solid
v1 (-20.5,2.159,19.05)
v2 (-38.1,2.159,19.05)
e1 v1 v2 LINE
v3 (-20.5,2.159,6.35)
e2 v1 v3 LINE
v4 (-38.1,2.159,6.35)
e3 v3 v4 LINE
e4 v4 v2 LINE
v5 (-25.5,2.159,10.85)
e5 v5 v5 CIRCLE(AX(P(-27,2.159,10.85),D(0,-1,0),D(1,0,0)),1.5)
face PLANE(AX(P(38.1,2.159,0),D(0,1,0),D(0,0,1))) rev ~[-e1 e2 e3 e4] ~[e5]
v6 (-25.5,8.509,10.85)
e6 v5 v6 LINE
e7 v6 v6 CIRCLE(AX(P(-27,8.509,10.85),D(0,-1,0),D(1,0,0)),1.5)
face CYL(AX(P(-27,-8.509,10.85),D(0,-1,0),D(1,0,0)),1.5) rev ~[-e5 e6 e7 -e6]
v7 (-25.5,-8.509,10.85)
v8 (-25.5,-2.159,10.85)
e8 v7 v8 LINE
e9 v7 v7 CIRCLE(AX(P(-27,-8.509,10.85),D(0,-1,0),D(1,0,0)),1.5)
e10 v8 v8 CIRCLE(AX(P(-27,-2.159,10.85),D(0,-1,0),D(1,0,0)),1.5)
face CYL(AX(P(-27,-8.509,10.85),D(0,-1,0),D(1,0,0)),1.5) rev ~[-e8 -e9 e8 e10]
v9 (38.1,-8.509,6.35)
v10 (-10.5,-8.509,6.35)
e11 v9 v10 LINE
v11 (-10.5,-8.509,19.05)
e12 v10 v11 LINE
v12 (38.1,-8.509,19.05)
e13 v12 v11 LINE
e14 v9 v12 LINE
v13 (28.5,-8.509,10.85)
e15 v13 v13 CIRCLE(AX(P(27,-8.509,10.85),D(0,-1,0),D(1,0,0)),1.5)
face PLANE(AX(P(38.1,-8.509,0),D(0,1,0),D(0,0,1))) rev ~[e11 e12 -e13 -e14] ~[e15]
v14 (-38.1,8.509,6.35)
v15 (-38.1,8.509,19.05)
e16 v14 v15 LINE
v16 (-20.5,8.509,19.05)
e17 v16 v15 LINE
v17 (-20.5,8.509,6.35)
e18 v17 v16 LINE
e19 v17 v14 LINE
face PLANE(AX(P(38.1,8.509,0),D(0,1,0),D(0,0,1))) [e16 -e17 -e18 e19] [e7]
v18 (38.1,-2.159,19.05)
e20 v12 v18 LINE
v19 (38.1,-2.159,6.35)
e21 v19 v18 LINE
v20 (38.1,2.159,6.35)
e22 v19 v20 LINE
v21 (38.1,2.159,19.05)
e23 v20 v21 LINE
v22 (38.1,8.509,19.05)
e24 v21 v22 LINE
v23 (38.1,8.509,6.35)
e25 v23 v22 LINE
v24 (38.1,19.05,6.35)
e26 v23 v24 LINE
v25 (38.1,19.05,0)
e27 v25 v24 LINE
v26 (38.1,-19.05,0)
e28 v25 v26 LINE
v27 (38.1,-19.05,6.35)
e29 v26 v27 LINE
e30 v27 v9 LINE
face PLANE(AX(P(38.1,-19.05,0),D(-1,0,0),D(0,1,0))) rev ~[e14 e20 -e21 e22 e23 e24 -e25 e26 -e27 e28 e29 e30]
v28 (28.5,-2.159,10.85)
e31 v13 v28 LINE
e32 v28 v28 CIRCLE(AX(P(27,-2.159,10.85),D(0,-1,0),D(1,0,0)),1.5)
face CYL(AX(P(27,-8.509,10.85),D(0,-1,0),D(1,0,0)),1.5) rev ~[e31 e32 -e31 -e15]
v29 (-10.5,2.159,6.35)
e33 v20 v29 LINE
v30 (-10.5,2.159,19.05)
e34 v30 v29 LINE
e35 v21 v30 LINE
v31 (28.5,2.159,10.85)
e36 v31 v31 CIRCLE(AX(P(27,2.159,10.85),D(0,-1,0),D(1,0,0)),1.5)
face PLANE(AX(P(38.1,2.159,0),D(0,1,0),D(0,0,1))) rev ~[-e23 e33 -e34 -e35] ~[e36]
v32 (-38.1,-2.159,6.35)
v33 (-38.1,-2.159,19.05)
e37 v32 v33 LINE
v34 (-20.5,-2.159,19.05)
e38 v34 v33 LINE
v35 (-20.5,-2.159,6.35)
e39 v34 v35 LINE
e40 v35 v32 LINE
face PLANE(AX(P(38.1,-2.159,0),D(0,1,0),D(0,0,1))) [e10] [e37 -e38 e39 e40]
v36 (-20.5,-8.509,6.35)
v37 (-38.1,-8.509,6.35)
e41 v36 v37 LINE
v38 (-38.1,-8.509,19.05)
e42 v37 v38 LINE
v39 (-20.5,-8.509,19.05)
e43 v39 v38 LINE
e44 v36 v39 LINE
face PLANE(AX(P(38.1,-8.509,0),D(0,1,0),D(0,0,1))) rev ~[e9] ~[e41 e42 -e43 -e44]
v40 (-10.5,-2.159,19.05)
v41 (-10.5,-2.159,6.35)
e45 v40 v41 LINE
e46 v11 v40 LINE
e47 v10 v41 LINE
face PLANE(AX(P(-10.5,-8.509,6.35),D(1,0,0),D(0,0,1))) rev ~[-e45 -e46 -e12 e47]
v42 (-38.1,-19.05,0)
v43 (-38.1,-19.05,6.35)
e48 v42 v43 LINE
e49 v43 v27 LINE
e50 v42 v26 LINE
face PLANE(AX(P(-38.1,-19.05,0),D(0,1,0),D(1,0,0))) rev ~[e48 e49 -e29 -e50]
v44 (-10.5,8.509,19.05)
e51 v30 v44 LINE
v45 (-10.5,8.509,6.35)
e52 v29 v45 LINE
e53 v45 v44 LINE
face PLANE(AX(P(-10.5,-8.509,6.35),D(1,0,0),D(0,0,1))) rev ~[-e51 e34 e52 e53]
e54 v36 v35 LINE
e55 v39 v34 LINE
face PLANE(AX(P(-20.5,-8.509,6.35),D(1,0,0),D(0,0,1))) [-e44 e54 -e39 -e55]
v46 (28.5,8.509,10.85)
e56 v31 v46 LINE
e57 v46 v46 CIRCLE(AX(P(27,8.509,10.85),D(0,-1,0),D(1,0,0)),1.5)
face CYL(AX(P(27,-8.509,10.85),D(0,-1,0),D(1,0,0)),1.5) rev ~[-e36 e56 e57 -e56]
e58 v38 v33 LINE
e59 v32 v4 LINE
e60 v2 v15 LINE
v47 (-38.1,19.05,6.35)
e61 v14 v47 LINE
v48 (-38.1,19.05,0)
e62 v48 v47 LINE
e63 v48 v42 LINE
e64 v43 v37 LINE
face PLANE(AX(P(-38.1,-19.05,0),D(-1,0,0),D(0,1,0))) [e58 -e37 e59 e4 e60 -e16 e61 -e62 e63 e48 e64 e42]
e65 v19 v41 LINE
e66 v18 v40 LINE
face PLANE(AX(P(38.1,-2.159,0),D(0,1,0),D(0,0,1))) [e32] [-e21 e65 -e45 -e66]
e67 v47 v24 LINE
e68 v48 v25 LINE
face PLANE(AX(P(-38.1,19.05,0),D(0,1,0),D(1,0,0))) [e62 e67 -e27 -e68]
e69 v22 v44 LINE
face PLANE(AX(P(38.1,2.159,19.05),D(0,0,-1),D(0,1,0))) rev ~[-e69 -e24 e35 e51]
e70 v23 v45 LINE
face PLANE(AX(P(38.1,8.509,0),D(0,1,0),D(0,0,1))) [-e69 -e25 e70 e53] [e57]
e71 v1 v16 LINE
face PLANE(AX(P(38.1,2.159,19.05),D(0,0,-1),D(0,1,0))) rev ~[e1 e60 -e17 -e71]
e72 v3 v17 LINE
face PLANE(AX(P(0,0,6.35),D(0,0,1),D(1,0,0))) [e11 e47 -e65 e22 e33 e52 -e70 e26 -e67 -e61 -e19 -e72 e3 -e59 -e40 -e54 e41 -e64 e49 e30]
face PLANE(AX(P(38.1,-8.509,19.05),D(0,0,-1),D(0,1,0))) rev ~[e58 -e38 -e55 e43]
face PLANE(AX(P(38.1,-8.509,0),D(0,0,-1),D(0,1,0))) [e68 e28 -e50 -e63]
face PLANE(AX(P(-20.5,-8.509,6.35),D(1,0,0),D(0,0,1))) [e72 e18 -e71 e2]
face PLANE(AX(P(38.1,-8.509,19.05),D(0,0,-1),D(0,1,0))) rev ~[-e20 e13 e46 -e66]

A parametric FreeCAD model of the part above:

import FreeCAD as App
import Part
import Sketcher
from FreeCAD import Vector
Q = App.Units.Quantity

doc = App.newDocument("Part")
body = doc.addObject("PartDesign::Body", "Body")

# Sketch on XY plane
sketch1 = body.newObject("Sketcher::SketchObject", "Sketch")
sketch1.AttachmentSupport = (doc.getObject("XY_Plane"), [""])
sketch1.MapMode = "FlatFace"
sketch1.addGeometry(Part.LineSegment(Vector(-38, 19, 0), Vector(-38, -19, 0)), False)
sketch1.addGeometry(Part.LineSegment(Vector(-38, -19, 0), Vector(38, -19, 0)), False)
sketch1.addGeometry(Part.LineSegment(Vector(38, -19, 0), Vector(38, 19, 0)), False)
sketch1.addGeometry(Part.LineSegment(Vector(38, 19, 0), Vector(-38, 19, 0)), False)
sketch1.addConstraint(Sketcher.Constraint("Coincident", 0, 2, 1, 1))
sketch1.addConstraint(Sketcher.Constraint("Coincident", 1, 2, 2, 1))
sketch1.addConstraint(Sketcher.Constraint("Coincident", 2, 2, 3, 1))
sketch1.addConstraint(Sketcher.Constraint("Coincident", 3, 2, 0, 1))
sketch1.addConstraint(Sketcher.Constraint("Vertical", 0))
sketch1.addConstraint(Sketcher.Constraint("Horizontal", 1))
sketch1.addConstraint(Sketcher.Constraint("Vertical", 2))
sketch1.addConstraint(Sketcher.Constraint("Horizontal", 3))
sketch1.addConstraint(Sketcher.Constraint("Symmetric", 0, 2, 2, 2, -1, 1))
sketch1.addConstraint(Sketcher.Constraint("DistanceX", 1, 1, 1, 2, Q("3 in")))
sketch1.addConstraint(Sketcher.Constraint("DistanceY", 0, 2, 0, 1, Q("1.5 in")))
pad1 = body.newObject("PartDesign::Pad", "Pad")
pad1.Profile = sketch1
pad1.Length = Q("0.25 in")

# Sketch on YZ plane
sketch2 = body.newObject("Sketcher::SketchObject", "Sketch001")
sketch2.AttachmentSupport = (doc.getObject("YZ_Plane"), [""])
sketch2.MapMode = "FlatFace"
sketch2.AttachmentOffset = App.Placement(Vector(0, 0, 1.5 * 25.4), App.Rotation())
sketch2.addGeometry(Part.LineSegment(Vector(-9, 19, 0), Vector(-9, 0, 0)), False)
sketch2.addGeometry(Part.LineSegment(Vector(-9, 0, 0), Vector(-2, 0, 0)), False)
sketch2.addGeometry(Part.LineSegment(Vector(-2, 0, 0), Vector(-2, 19, 0)), False)
sketch2.addGeometry(Part.LineSegment(Vector(-2, 19, 0), Vector(-9, 19, 0)), False)
sketch2.addGeometry(Part.LineSegment(Vector(2, 19, 0), Vector(2, 0, 0)), False)
sketch2.addGeometry(Part.LineSegment(Vector(2, 0, 0), Vector(9, 0, 0)), False)
sketch2.addGeometry(Part.LineSegment(Vector(9, 0, 0), Vector(9, 19, 0)), False)
sketch2.addGeometry(Part.LineSegment(Vector(9, 19, 0), Vector(2, 19, 0)), False)
sketch2.addConstraint(Sketcher.Constraint("Coincident", 0, 2, 1, 1))
sketch2.addConstraint(Sketcher.Constraint("Coincident", 1, 2, 2, 1))
sketch2.addConstraint(Sketcher.Constraint("Coincident", 2, 2, 3, 1))
sketch2.addConstraint(Sketcher.Constraint("Coincident", 3, 2, 0, 1))
sketch2.addConstraint(Sketcher.Constraint("Coincident", 4, 2, 5, 1))
sketch2.addConstraint(Sketcher.Constraint("Coincident", 5, 2, 6, 1))
sketch2.addConstraint(Sketcher.Constraint("Coincident", 6, 2, 7, 1))
sketch2.addConstraint(Sketcher.Constraint("Coincident", 7, 2, 4, 1))
sketch2.addConstraint(Sketcher.Constraint("Vertical", 0))
sketch2.addConstraint(Sketcher.Constraint("Horizontal", 1))
sketch2.addConstraint(Sketcher.Constraint("Vertical", 2))
sketch2.addConstraint(Sketcher.Constraint("Horizontal", 3))
sketch2.addConstraint(Sketcher.Constraint("Vertical", 4))
sketch2.addConstraint(Sketcher.Constraint("Horizontal", 5))
sketch2.addConstraint(Sketcher.Constraint("Vertical", 6))
sketch2.addConstraint(Sketcher.Constraint("Horizontal", 7))
sketch2.addConstraint(Sketcher.Constraint("Symmetric", 1, 2, 4, 2, -1, 1))
sketch2.addConstraint(Sketcher.Constraint("Symmetric", 0, 2, 5, 2, -2))
sketch2.addConstraint(Sketcher.Constraint("Horizontal", 3, 2, 6, 2))
sketch2.addConstraint(Sketcher.Constraint("DistanceX", 1, 1, 1, 2, Q("0.25 in")))
sketch2.addConstraint(Sketcher.Constraint("DistanceY", 0, 2, 0, 1, Q("0.75 in")))
sketch2.addConstraint(Sketcher.Constraint("DistanceX", 1, 2, 4, 2, Q("0.17 in")))
pad2 = body.newObject("PartDesign::Pad", "Pad001")
pad2.Profile = sketch2
pad2.Length = Q("3 in")
pad2.Reversed = True

# Sketch on XZ plane
sketch3 = body.newObject("Sketcher::SketchObject", "Sketch002")
sketch3.AttachmentSupport = (doc.getObject("XZ_Plane"), [""])
sketch3.MapMode = "FlatFace"
sketch3.AttachmentOffset = App.Placement(Vector(0, 0, 0.335 * 25.4), App.Rotation())
sketch3.addGeometry(Part.Circle(Vector(-27, 10.8, 0), Vector(0, 0, 1), 1.5), False)
sketch3.addGeometry(Part.Circle(Vector(27, 10.8, 0), Vector(0, 0, 1), 1.5), False)
sketch3.addGeometry(Part.LineSegment(Vector(-20.5, 19.1, 0), Vector(-20.5, 6.3, 0)), False)
sketch3.addGeometry(Part.LineSegment(Vector(-20.5, 6.3, 0), Vector(-10.5, 6.3, 0)), False)
sketch3.addGeometry(Part.LineSegment(Vector(-10.5, 6.3, 0), Vector(-10.5, 19.1, 0)), False)
sketch3.addGeometry(Part.LineSegment(Vector(-10.5, 19.1, 0), Vector(-20.5, 19.1, 0)), False)
sketch3.addConstraint(Sketcher.Constraint("Coincident", 2, 2, 3, 1))
sketch3.addConstraint(Sketcher.Constraint("Coincident", 3, 2, 4, 1))
sketch3.addConstraint(Sketcher.Constraint("Coincident", 4, 2, 5, 1))
sketch3.addConstraint(Sketcher.Constraint("Coincident", 5, 2, 2, 1))
sketch3.addConstraint(Sketcher.Constraint("Vertical", 2))
sketch3.addConstraint(Sketcher.Constraint("Horizontal", 3))
sketch3.addConstraint(Sketcher.Constraint("Vertical", 4))
sketch3.addConstraint(Sketcher.Constraint("Horizontal", 5))
sketch3.addConstraint(Sketcher.Constraint("Equal", 0, 1))
sketch3.addConstraint(Sketcher.Constraint("Symmetric", 0, 3, 1, 3, -2))
sketch3.addConstraint(Sketcher.Constraint("DistanceY", 2, 2, 2, 1, Q("0.5 in")))
sketch3.addConstraint(Sketcher.Constraint("Diameter", 0, 3.0))
sketch3.addConstraint(Sketcher.Constraint("DistanceY", -1, 1, 2, 2, Q("0.25 in")))
sketch3.addConstraint(Sketcher.Constraint("DistanceX", 3, 1, 3, 2, 10.0))
sketch3.addConstraint(Sketcher.Constraint("DistanceX", 0, 3, -1, 1, 27.0))
sketch3.addConstraint(Sketcher.Constraint("DistanceY", -1, 1, 0, 3, 10.85))
sketch3.addConstraint(Sketcher.Constraint("DistanceX", 2, 2, -1, 1, 20.5))
pocket1 = body.newObject("PartDesign::Pocket", "Pocket")
pocket1.Profile = sketch3
pocket1.Type = "ThroughAll"

doc.recompute()
